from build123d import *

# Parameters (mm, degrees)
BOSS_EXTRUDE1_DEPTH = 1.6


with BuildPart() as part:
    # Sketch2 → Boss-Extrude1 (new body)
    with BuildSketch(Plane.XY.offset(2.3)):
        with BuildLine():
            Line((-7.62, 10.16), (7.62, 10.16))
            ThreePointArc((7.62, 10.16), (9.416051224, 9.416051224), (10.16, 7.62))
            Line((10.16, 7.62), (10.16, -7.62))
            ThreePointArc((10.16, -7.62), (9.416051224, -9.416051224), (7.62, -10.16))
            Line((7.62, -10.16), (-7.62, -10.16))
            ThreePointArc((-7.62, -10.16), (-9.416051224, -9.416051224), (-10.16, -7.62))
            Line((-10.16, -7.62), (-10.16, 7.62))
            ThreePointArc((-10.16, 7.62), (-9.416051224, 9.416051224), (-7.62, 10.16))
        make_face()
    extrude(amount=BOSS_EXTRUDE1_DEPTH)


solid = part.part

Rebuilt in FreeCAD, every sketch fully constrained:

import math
import FreeCAD as App
import Part
import Sketcher
from FreeCAD import Vector
Q = App.Units.Quantity

doc = App.newDocument("Part")
body = doc.addObject("PartDesign::Body", "Body")

sketch1 = body.newObject("Sketcher::SketchObject", "Sketch")
sketch1.AttachmentSupport = (doc.getObject("XY_Plane"), [""])
sketch1.MapMode = "FlatFace"
sketch1.AttachmentOffset = App.Placement(Vector(0, 0, 2.3), App.Rotation())
sketch1.addGeometry([
    Part.LineSegment(Vector(7.6, 10.2, 0), Vector(-7.6, 10.2, 0)),
    Part.ArcOfCircle(Part.Circle(Vector(-7.6, 7.6, 0), Vector(0, 0, 1), 2.5), math.radians(90), math.radians(180)),
    Part.LineSegment(Vector(-10.2, 7.6, 0), Vector(-10.2, -7.6, 0)),
    Part.ArcOfCircle(Part.Circle(Vector(-7.6, -7.6, 0), Vector(0, 0, 1), 2.5), math.radians(-180), math.radians(-90)),
    Part.LineSegment(Vector(-7.6, -10.2, 0), Vector(7.6, -10.2, 0)),
    Part.ArcOfCircle(Part.Circle(Vector(7.6, -7.6, 0), Vector(0, 0, 1), 2.5), math.radians(-90), math.radians(0)),
    Part.LineSegment(Vector(10.2, -7.6, 0), Vector(10.2, 7.6, 0)),
    Part.ArcOfCircle(Part.Circle(Vector(7.6, 7.6, 0), Vector(0, 0, 1), 2.5), math.radians(0), math.radians(90)),
], False)
sketch1.addConstraint([
    Sketcher.Constraint("Tangent", 0, 2, 1, 1),
    Sketcher.Constraint("Tangent", 1, 2, 2, 1),
    Sketcher.Constraint("Tangent", 2, 2, 3, 1),
    Sketcher.Constraint("Tangent", 3, 2, 4, 1),
    Sketcher.Constraint("Tangent", 4, 2, 5, 1),
    Sketcher.Constraint("Tangent", 5, 2, 6, 1),
    Sketcher.Constraint("Tangent", 6, 2, 7, 1),
    Sketcher.Constraint("Tangent", 7, 2, 0, 1),
    Sketcher.Constraint("Horizontal", 0),
    Sketcher.Constraint("Vertical", 2),
    Sketcher.Constraint("Horizontal", 4),
    Sketcher.Constraint("Vertical", 6),
    Sketcher.Constraint("Equal", 1, 3),
    Sketcher.Constraint("Equal", 3, 5),
    Sketcher.Constraint("Equal", 5, 7),
    Sketcher.Constraint("Symmetric", 1, 3, 5, 3, -1, 1),
    Sketcher.Constraint("Equal", 4, 2),
    Sketcher.Constraint("Radius", 1, Q("0.1 in")),
    Sketcher.Constraint("DistanceX", 0, 2, 0, 1, Q("0.6 in")),
])
pad1 = body.newObject("PartDesign::Pad", "Pad")
pad1.Profile = sketch1
pad1.Length = 1.6

doc.recompute()
